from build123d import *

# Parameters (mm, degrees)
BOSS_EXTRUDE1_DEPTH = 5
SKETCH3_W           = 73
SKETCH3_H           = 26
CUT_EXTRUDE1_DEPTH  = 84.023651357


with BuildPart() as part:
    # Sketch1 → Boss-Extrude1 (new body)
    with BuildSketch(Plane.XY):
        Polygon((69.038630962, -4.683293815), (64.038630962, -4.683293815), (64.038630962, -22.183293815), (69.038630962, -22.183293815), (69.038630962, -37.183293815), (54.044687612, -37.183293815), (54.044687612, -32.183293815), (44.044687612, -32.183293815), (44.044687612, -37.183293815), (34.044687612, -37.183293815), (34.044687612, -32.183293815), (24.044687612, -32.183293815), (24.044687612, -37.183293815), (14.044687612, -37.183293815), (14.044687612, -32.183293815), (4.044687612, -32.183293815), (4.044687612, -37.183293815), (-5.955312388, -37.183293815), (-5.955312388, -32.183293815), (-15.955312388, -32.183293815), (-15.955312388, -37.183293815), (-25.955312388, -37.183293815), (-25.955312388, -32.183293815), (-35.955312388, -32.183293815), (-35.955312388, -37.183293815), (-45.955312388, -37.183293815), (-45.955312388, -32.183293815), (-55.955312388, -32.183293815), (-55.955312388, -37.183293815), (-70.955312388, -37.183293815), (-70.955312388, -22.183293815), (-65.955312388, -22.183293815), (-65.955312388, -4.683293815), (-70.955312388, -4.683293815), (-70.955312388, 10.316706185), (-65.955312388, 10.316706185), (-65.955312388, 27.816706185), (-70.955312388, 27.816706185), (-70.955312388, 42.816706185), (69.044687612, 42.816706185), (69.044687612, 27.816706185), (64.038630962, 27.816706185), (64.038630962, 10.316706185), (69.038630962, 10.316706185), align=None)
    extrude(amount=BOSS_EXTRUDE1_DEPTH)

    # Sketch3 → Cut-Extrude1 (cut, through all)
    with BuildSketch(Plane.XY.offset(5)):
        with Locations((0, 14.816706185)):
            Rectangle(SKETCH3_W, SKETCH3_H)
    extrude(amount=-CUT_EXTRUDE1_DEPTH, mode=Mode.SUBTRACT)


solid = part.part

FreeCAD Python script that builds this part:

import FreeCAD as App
import Part
import Sketcher
from FreeCAD import Vector

doc = App.newDocument("Part")
body = doc.addObject("PartDesign::Body", "Body")

sketch1 = body.newObject("Sketcher::SketchObject", "Sketch")
sketch1.AttachmentSupport = (doc.getObject("XY_Plane"), [""])
sketch1.MapMode = "FlatFace"
sketch1.addGeometry(Part.LineSegment(Vector(64.038631, -4.683294, 0), Vector(69.038631, -4.683294, 0)), False)
sketch1.addGeometry(Part.LineSegment(Vector(69.038631, -4.683294, 0), Vector(69.038631, 10.316706, 0)), False)
sketch1.addGeometry(Part.LineSegment(Vector(69.038631, 10.316706, 0), Vector(64.038631, 10.316706, 0)), False)
sketch1.addGeometry(Part.LineSegment(Vector(64.038631, 10.316706, 0), Vector(64.038631, 27.816706, 0)), False)
sketch1.addGeometry(Part.LineSegment(Vector(64.038631, 27.816706, 0), Vector(69.044688, 27.816706, 0)), False)
sketch1.addGeometry(Part.LineSegment(Vector(69.044688, 27.816706, 0), Vector(69.044688, 42.816706, 0)), False)
sketch1.addGeometry(Part.LineSegment(Vector(69.044688, 42.816706, 0), Vector(-70.955312, 42.816706, 0)), False)
sketch1.addGeometry(Part.LineSegment(Vector(-70.955312, 42.816706, 0), Vector(-70.955312, 27.816706, 0)), False)
sketch1.addGeometry(Part.LineSegment(Vector(-70.955312, 27.816706, 0), Vector(-65.955312, 27.816706, 0)), False)
sketch1.addGeometry(Part.LineSegment(Vector(-65.955312, 27.816706, 0), Vector(-65.955312, 10.316706, 0)), False)
sketch1.addGeometry(Part.LineSegment(Vector(-65.955312, 10.316706, 0), Vector(-70.955312, 10.316706, 0)), False)
sketch1.addGeometry(Part.LineSegment(Vector(-70.955312, 10.316706, 0), Vector(-70.955312, -4.683294, 0)), False)
sketch1.addGeometry(Part.LineSegment(Vector(-70.955312, -4.683294, 0), Vector(-65.955312, -4.683294, 0)), False)
sketch1.addGeometry(Part.LineSegment(Vector(-65.955312, -4.683294, 0), Vector(-65.955312, -22.183294, 0)), False)
sketch1.addGeometry(Part.LineSegment(Vector(-65.955312, -22.183294, 0), Vector(-70.955312, -22.183294, 0)), False)
sketch1.addGeometry(Part.LineSegment(Vector(-70.955312, -22.183294, 0), Vector(-70.955312, -37.183294, 0)), False)
sketch1.addGeometry(Part.LineSegment(Vector(-70.955312, -37.183294, 0), Vector(-55.955312, -37.183294, 0)), False)
sketch1.addGeometry(Part.LineSegment(Vector(-55.955312, -37.183294, 0), Vector(-55.955312, -32.183294, 0)), False)
sketch1.addGeometry(Part.LineSegment(Vector(-55.955312, -32.183294, 0), Vector(-45.955312, -32.183294, 0)), False)
sketch1.addGeometry(Part.LineSegment(Vector(-45.955312, -32.183294, 0), Vector(-45.955312, -37.183294, 0)), False)
sketch1.addGeometry(Part.LineSegment(Vector(-45.955312, -37.183294, 0), Vector(-35.955312, -37.183294, 0)), False)
sketch1.addGeometry(Part.LineSegment(Vector(-35.955312, -37.183294, 0), Vector(-35.955312, -32.183294, 0)), False)
sketch1.addGeometry(Part.LineSegment(Vector(-35.955312, -32.183294, 0), Vector(-25.955312, -32.183294, 0)), False)
sketch1.addGeometry(Part.LineSegment(Vector(-25.955312, -32.183294, 0), Vector(-25.955312, -37.183294, 0)), False)
sketch1.addGeometry(Part.LineSegment(Vector(-25.955312, -37.183294, 0), Vector(-15.955312, -37.183294, 0)), False)
sketch1.addGeometry(Part.LineSegment(Vector(-15.955312, -37.183294, 0), Vector(-15.955312, -32.183294, 0)), False)
sketch1.addGeometry(Part.LineSegment(Vector(-15.955312, -32.183294, 0), Vector(-5.955312, -32.183294, 0)), False)
sketch1.addGeometry(Part.LineSegment(Vector(-5.955312, -32.183294, 0), Vector(-5.955312, -37.183294, 0)), False)
sketch1.addGeometry(Part.LineSegment(Vector(-5.955312, -37.183294, 0), Vector(4.044688, -37.183294, 0)), False)
sketch1.addGeometry(Part.LineSegment(Vector(4.044688, -37.183294, 0), Vector(4.044688, -32.183294, 0)), False)
sketch1.addGeometry(Part.LineSegment(Vector(4.044688, -32.183294, 0), Vector(14.044688, -32.183294, 0)), False)
sketch1.addGeometry(Part.LineSegment(Vector(14.044688, -32.183294, 0), Vector(14.044688, -37.183294, 0)), False)
sketch1.addGeometry(Part.LineSegment(Vector(14.044688, -37.183294, 0), Vector(24.044688, -37.183294, 0)), False)
sketch1.addGeometry(Part.LineSegment(Vector(24.044688, -37.183294, 0), Vector(24.044688, -32.183294, 0)), False)
sketch1.addGeometry(Part.LineSegment(Vector(24.044688, -32.183294, 0), Vector(34.044688, -32.183294, 0)), False)
sketch1.addGeometry(Part.LineSegment(Vector(34.044688, -32.183294, 0), Vector(34.044688, -37.183294, 0)), False)
sketch1.addGeometry(Part.LineSegment(Vector(34.044688, -37.183294, 0), Vector(44.044688, -37.183294, 0)), False)
sketch1.addGeometry(Part.LineSegment(Vector(44.044688, -37.183294, 0), Vector(44.044688, -32.183294, 0)), False)
sketch1.addGeometry(Part.LineSegment(Vector(44.044688, -32.183294, 0), Vector(54.044688, -32.183294, 0)), False)
sketch1.addGeometry(Part.LineSegment(Vector(54.044688, -32.183294, 0), Vector(54.044688, -37.183294, 0)), False)
sketch1.addGeometry(Part.LineSegment(Vector(54.044688, -37.183294, 0), Vector(69.038631, -37.183294, 0)), False)
sketch1.addGeometry(Part.LineSegment(Vector(69.038631, -37.183294, 0), Vector(69.038631, -22.183294, 0)), False)
sketch1.addGeometry(Part.LineSegment(Vector(69.038631, -22.183294, 0), Vector(64.038631, -22.183294, 0)), False)
sketch1.addGeometry(Part.LineSegment(Vector(64.038631, -22.183294, 0), Vector(64.038631, -4.683294, 0)), False)
sketch1.addConstraint(Sketcher.Constraint("Coincident", 0, 2, 1, 1))
sketch1.addConstraint(Sketcher.Constraint("Coincident", 1, 2, 2, 1))
sketch1.addConstraint(Sketcher.Constraint("Coincident", 2, 2, 3, 1))
sketch1.addConstraint(Sketcher.Constraint("Coincident", 3, 2, 4, 1))
sketch1.addConstraint(Sketcher.Constraint("Coincident", 4, 2, 5, 1))
sketch1.addConstraint(Sketcher.Constraint("Coincident", 5, 2, 6, 1))
sketch1.addConstraint(Sketcher.Constraint("Coincident", 6, 2, 7, 1))
sketch1.addConstraint(Sketcher.Constraint("Coincident", 7, 2, 8, 1))
sketch1.addConstraint(Sketcher.Constraint("Coincident", 8, 2, 9, 1))
sketch1.addConstraint(Sketcher.Constraint("Coincident", 9, 2, 10, 1))
sketch1.addConstraint(Sketcher.Constraint("Coincident", 10, 2, 11, 1))
sketch1.addConstraint(Sketcher.Constraint("Coincident", 11, 2, 12, 1))
sketch1.addConstraint(Sketcher.Constraint("Coincident", 12, 2, 13, 1))
sketch1.addConstraint(Sketcher.Constraint("Coincident", 13, 2, 14, 1))
sketch1.addConstraint(Sketcher.Constraint("Coincident", 14, 2, 15, 1))
sketch1.addConstraint(Sketcher.Constraint("Coincident", 15, 2, 16, 1))
sketch1.addConstraint(Sketcher.Constraint("Coincident", 16, 2, 17, 1))
sketch1.addConstraint(Sketcher.Constraint("Coincident", 17, 2, 18, 1))
sketch1.addConstraint(Sketcher.Constraint("Coincident", 18, 2, 19, 1))
sketch1.addConstraint(Sketcher.Constraint("Coincident", 19, 2, 20, 1))
sketch1.addConstraint(Sketcher.Constraint("Coincident", 20, 2, 21, 1))
sketch1.addConstraint(Sketcher.Constraint("Coincident", 21, 2, 22, 1))
sketch1.addConstraint(Sketcher.Constraint("Coincident", 22, 2, 23, 1))
sketch1.addConstraint(Sketcher.Constraint("Coincident", 23, 2, 24, 1))
sketch1.addConstraint(Sketcher.Constraint("Coincident", 24, 2, 25, 1))
sketch1.addConstraint(Sketcher.Constraint("Coincident", 25, 2, 26, 1))
sketch1.addConstraint(Sketcher.Constraint("Coincident", 26, 2, 27, 1))
sketch1.addConstraint(Sketcher.Constraint("Coincident", 27, 2, 28, 1))
sketch1.addConstraint(Sketcher.Constraint("Coincident", 28, 2, 29, 1))
sketch1.addConstraint(Sketcher.Constraint("Coincident", 29, 2, 30, 1))
sketch1.addConstraint(Sketcher.Constraint("Coincident", 30, 2, 31, 1))
sketch1.addConstraint(Sketcher.Constraint("Coincident", 31, 2, 32, 1))
sketch1.addConstraint(Sketcher.Constraint("Coincident", 32, 2, 33, 1))
sketch1.addConstraint(Sketcher.Constraint("Coincident", 33, 2, 34, 1))
sketch1.addConstraint(Sketcher.Constraint("Coincident", 34, 2, 35, 1))
sketch1.addConstraint(Sketcher.Constraint("Coincident", 35, 2, 36, 1))
sketch1.addConstraint(Sketcher.Constraint("Coincident", 36, 2, 37, 1))
sketch1.addConstraint(Sketcher.Constraint("Coincident", 37, 2, 38, 1))
sketch1.addConstraint(Sketcher.Constraint("Coincident", 38, 2, 39, 1))
sketch1.addConstraint(Sketcher.Constraint("Coincident", 39, 2, 40, 1))
sketch1.addConstraint(Sketcher.Constraint("Coincident", 40, 2, 41, 1))
sketch1.addConstraint(Sketcher.Constraint("Coincident", 41, 2, 42, 1))
sketch1.addConstraint(Sketcher.Constraint("Coincident", 42, 2, 43, 1))
sketch1.addConstraint(Sketcher.Constraint("Coincident", 43, 2, 0, 1))
sketch1.addConstraint(Sketcher.Constraint("Horizontal", 0))
sketch1.addConstraint(Sketcher.Constraint("Vertical", 1))
sketch1.addConstraint(Sketcher.Constraint("Horizontal", 2))
sketch1.addConstraint(Sketcher.Constraint("Vertical", 3))
sketch1.addConstraint(Sketcher.Constraint("Horizontal", 4))
sketch1.addConstraint(Sketcher.Constraint("Vertical", 5))
sketch1.addConstraint(Sketcher.Constraint("Horizontal", 6))
sketch1.addConstraint(Sketcher.Constraint("Vertical", 7))
sketch1.addConstraint(Sketcher.Constraint("Horizontal", 8))
sketch1.addConstraint(Sketcher.Constraint("Vertical", 9))
sketch1.addConstraint(Sketcher.Constraint("Horizontal", 10))
sketch1.addConstraint(Sketcher.Constraint("Vertical", 11))
sketch1.addConstraint(Sketcher.Constraint("Horizontal", 12))
sketch1.addConstraint(Sketcher.Constraint("Vertical", 13))
sketch1.addConstraint(Sketcher.Constraint("Horizontal", 14))
sketch1.addConstraint(Sketcher.Constraint("Vertical", 15))
sketch1.addConstraint(Sketcher.Constraint("Horizontal", 16))
sketch1.addConstraint(Sketcher.Constraint("Vertical", 17))
sketch1.addConstraint(Sketcher.Constraint("Horizontal", 18))
sketch1.addConstraint(Sketcher.Constraint("Vertical", 19))
sketch1.addConstraint(Sketcher.Constraint("Horizontal", 20))
sketch1.addConstraint(Sketcher.Constraint("Vertical", 21))
sketch1.addConstraint(Sketcher.Constraint("Horizontal", 22))
sketch1.addConstraint(Sketcher.Constraint("Vertical", 23))
sketch1.addConstraint(Sketcher.Constraint("Horizontal", 24))
sketch1.addConstraint(Sketcher.Constraint("Vertical", 25))
sketch1.addConstraint(Sketcher.Constraint("Horizontal", 26))
sketch1.addConstraint(Sketcher.Constraint("Vertical", 27))
sketch1.addConstraint(Sketcher.Constraint("Horizontal", 28))
sketch1.addConstraint(Sketcher.Constraint("Vertical", 29))
sketch1.addConstraint(Sketcher.Constraint("Horizontal", 30))
sketch1.addConstraint(Sketcher.Constraint("Vertical", 31))
sketch1.addConstraint(Sketcher.Constraint("Horizontal", 32))
sketch1.addConstraint(Sketcher.Constraint("Vertical", 33))
sketch1.addConstraint(Sketcher.Constraint("Horizontal", 34))
sketch1.addConstraint(Sketcher.Constraint("Vertical", 35))
sketch1.addConstraint(Sketcher.Constraint("Horizontal", 36))
sketch1.addConstraint(Sketcher.Constraint("Vertical", 37))
sketch1.addConstraint(Sketcher.Constraint("Horizontal", 38))
sketch1.addConstraint(Sketcher.Constraint("Vertical", 39))
sketch1.addConstraint(Sketcher.Constraint("Horizontal", 40))
sketch1.addConstraint(Sketcher.Constraint("Vertical", 41))
sketch1.addConstraint(Sketcher.Constraint("Horizontal", 42))
sketch1.addConstraint(Sketcher.Constraint("Vertical", 43))
sketch1.addConstraint(Sketcher.Constraint("Horizontal", 4, 2, 7, 2))
sketch1.addConstraint(Sketcher.Constraint("Horizontal", 2, 2, 9, 2))
sketch1.addConstraint(Sketcher.Constraint("Horizontal", 0, 2, 11, 2))
sketch1.addConstraint(Sketcher.Constraint("Horizontal", 16, 2, 19, 2))
sketch1.addConstraint(Sketcher.Constraint("Horizontal", 18, 2, 21, 2))
sketch1.addConstraint(Sketcher.Constraint("Horizontal", 20, 2, 23, 2))
sketch1.addConstraint(Sketcher.Constraint("Horizontal", 22, 2, 25, 2))
sketch1.addConstraint(Sketcher.Constraint("Horizontal", 24, 2, 27, 2))
sketch1.addConstraint(Sketcher.Constraint("Horizontal", 26, 2, 29, 2))
sketch1.addConstraint(Sketcher.Constraint("Horizontal", 28, 2, 31, 2))
sketch1.addConstraint(Sketcher.Constraint("Horizontal", 30, 2, 33, 2))
sketch1.addConstraint(Sketcher.Constraint("Horizontal", 32, 2, 35, 2))
sketch1.addConstraint(Sketcher.Constraint("Horizontal", 34, 2, 37, 2))
sketch1.addConstraint(Sketcher.Constraint("Horizontal", 36, 2, 39, 2))
sketch1.addConstraint(Sketcher.Constraint("Horizontal", 14, 2, 41, 2))
sketch1.addConstraint(Sketcher.Constraint("Vertical", 7, 2, 10, 2))
sketch1.addConstraint(Sketcher.Constraint("Vertical", 9, 2, 12, 2))
sketch1.addConstraint(Sketcher.Constraint("Vertical", 11, 2, 14, 2))
sketch1.addConstraint(Sketcher.Constraint("Vertical", 1, 2, 40, 2))
sketch1.addConstraint(Sketcher.Constraint("Vertical", 3, 2, 42, 2))
sketch1.addConstraint(Sketcher.Constraint("Equal", 2, 8))
sketch1.addConstraint(Sketcher.Constraint("Equal", 18, 20))
sketch1.addConstraint(Sketcher.Constraint("Equal", 20, 22))
sketch1.addConstraint(Sketcher.Constraint("Equal", 22, 24))
sketch1.addConstraint(Sketcher.Constraint("Equal", 24, 26))
sketch1.addConstraint(Sketcher.Constraint("Equal", 26, 28))
sketch1.addConstraint(Sketcher.Constraint("Equal", 28, 30))
sketch1.addConstraint(Sketcher.Constraint("Equal", 30, 32))
sketch1.addConstraint(Sketcher.Constraint("Equal", 32, 34))
sketch1.addConstraint(Sketcher.Constraint("Equal", 34, 36))
sketch1.addConstraint(Sketcher.Constraint("Equal", 36, 38))
sketch1.addConstraint(Sketcher.Constraint("Equal", 16, 1))
sketch1.addConstraint(Sketcher.Constraint("Equal", 1, 5))
sketch1.addConstraint(Sketcher.Constraint("Equal", 9, 13))
sketch1.addConstraint(Sketcher.Constraint("Equal", 11, 15))
sketch1.addConstraint(Sketcher.Constraint("Equal", 42, 17))
sketch1.addConstraint(Sketcher.Constraint("DistanceX", 0, 1, 0, 2, 5.0))
sketch1.addConstraint(Sketcher.Constraint("DistanceX", 6, 2, 6, 1, 140.0))
sketch1.addConstraint(Sketcher.Constraint("DistanceX", 16, 1, 16, 2, 15.0))
sketch1.addConstraint(Sketcher.Constraint("DistanceX", 18, 1, 18, 2, 10.0))
sketch1.addConstraint(Sketcher.Constraint("DistanceY", 3, 1, 3, 2, 17.5))
sketch1.addConstraint(Sketcher.Constraint("DistanceX", 4, 1, 4, 2, 5.006057))
sketch1.addConstraint(Sketcher.Constraint("DistanceX", -1, 1, 0, 2, 69.038631))
sketch1.addConstraint(Sketcher.Constraint("DistanceY", 0, 2, -1, 1, 4.683294))
pad1 = body.newObject("PartDesign::Pad", "Pad")
pad1.Profile = sketch1
pad1.Length = 5

sketch2 = body.newObject("Sketcher::SketchObject", "Sketch001")
sketch2.AttachmentSupport = (doc.getObject("XY_Plane"), [""])
sketch2.MapMode = "FlatFace"
sketch2.AttachmentOffset = App.Placement(Vector(0, 0, 5), App.Rotation())
sketch2.addGeometry(Part.LineSegment(Vector(-36.5, 27.816706, 0), Vector(-36.5, 1.816706, 0)), False)
sketch2.addGeometry(Part.LineSegment(Vector(-36.5, 1.816706, 0), Vector(36.5, 1.816706, 0)), False)
sketch2.addGeometry(Part.LineSegment(Vector(36.5, 1.816706, 0), Vector(36.5, 27.816706, 0)), False)
sketch2.addGeometry(Part.LineSegment(Vector(36.5, 27.816706, 0), Vector(-36.5, 27.816706, 0)), False)
sketch2.addConstraint(Sketcher.Constraint("Coincident", 0, 2, 1, 1))
sketch2.addConstraint(Sketcher.Constraint("Coincident", 1, 2, 2, 1))
sketch2.addConstraint(Sketcher.Constraint("Coincident", 2, 2, 3, 1))
sketch2.addConstraint(Sketcher.Constraint("Coincident", 3, 2, 0, 1))
sketch2.addConstraint(Sketcher.Constraint("Vertical", 0))
sketch2.addConstraint(Sketcher.Constraint("Horizontal", 1))
sketch2.addConstraint(Sketcher.Constraint("Vertical", 2))
sketch2.addConstraint(Sketcher.Constraint("Horizontal", 3))
sketch2.addConstraint(Sketcher.Constraint("DistanceX", 1, 1, 1, 2, 73.0))
sketch2.addConstraint(Sketcher.Constraint("DistanceY", 0, 2, 0, 1, 26.0))
sketch2.addConstraint(Sketcher.Constraint("DistanceX", 0, 2, -1, 1, 36.5))
sketch2.addConstraint(Sketcher.Constraint("DistanceY", -1, 1, 0, 2, 1.816706))
pocket1 = body.newObject("PartDesign::Pocket", "Pocket")
pocket1.Profile = sketch2
pocket1.Type = "ThroughAll"

doc.recompute()
